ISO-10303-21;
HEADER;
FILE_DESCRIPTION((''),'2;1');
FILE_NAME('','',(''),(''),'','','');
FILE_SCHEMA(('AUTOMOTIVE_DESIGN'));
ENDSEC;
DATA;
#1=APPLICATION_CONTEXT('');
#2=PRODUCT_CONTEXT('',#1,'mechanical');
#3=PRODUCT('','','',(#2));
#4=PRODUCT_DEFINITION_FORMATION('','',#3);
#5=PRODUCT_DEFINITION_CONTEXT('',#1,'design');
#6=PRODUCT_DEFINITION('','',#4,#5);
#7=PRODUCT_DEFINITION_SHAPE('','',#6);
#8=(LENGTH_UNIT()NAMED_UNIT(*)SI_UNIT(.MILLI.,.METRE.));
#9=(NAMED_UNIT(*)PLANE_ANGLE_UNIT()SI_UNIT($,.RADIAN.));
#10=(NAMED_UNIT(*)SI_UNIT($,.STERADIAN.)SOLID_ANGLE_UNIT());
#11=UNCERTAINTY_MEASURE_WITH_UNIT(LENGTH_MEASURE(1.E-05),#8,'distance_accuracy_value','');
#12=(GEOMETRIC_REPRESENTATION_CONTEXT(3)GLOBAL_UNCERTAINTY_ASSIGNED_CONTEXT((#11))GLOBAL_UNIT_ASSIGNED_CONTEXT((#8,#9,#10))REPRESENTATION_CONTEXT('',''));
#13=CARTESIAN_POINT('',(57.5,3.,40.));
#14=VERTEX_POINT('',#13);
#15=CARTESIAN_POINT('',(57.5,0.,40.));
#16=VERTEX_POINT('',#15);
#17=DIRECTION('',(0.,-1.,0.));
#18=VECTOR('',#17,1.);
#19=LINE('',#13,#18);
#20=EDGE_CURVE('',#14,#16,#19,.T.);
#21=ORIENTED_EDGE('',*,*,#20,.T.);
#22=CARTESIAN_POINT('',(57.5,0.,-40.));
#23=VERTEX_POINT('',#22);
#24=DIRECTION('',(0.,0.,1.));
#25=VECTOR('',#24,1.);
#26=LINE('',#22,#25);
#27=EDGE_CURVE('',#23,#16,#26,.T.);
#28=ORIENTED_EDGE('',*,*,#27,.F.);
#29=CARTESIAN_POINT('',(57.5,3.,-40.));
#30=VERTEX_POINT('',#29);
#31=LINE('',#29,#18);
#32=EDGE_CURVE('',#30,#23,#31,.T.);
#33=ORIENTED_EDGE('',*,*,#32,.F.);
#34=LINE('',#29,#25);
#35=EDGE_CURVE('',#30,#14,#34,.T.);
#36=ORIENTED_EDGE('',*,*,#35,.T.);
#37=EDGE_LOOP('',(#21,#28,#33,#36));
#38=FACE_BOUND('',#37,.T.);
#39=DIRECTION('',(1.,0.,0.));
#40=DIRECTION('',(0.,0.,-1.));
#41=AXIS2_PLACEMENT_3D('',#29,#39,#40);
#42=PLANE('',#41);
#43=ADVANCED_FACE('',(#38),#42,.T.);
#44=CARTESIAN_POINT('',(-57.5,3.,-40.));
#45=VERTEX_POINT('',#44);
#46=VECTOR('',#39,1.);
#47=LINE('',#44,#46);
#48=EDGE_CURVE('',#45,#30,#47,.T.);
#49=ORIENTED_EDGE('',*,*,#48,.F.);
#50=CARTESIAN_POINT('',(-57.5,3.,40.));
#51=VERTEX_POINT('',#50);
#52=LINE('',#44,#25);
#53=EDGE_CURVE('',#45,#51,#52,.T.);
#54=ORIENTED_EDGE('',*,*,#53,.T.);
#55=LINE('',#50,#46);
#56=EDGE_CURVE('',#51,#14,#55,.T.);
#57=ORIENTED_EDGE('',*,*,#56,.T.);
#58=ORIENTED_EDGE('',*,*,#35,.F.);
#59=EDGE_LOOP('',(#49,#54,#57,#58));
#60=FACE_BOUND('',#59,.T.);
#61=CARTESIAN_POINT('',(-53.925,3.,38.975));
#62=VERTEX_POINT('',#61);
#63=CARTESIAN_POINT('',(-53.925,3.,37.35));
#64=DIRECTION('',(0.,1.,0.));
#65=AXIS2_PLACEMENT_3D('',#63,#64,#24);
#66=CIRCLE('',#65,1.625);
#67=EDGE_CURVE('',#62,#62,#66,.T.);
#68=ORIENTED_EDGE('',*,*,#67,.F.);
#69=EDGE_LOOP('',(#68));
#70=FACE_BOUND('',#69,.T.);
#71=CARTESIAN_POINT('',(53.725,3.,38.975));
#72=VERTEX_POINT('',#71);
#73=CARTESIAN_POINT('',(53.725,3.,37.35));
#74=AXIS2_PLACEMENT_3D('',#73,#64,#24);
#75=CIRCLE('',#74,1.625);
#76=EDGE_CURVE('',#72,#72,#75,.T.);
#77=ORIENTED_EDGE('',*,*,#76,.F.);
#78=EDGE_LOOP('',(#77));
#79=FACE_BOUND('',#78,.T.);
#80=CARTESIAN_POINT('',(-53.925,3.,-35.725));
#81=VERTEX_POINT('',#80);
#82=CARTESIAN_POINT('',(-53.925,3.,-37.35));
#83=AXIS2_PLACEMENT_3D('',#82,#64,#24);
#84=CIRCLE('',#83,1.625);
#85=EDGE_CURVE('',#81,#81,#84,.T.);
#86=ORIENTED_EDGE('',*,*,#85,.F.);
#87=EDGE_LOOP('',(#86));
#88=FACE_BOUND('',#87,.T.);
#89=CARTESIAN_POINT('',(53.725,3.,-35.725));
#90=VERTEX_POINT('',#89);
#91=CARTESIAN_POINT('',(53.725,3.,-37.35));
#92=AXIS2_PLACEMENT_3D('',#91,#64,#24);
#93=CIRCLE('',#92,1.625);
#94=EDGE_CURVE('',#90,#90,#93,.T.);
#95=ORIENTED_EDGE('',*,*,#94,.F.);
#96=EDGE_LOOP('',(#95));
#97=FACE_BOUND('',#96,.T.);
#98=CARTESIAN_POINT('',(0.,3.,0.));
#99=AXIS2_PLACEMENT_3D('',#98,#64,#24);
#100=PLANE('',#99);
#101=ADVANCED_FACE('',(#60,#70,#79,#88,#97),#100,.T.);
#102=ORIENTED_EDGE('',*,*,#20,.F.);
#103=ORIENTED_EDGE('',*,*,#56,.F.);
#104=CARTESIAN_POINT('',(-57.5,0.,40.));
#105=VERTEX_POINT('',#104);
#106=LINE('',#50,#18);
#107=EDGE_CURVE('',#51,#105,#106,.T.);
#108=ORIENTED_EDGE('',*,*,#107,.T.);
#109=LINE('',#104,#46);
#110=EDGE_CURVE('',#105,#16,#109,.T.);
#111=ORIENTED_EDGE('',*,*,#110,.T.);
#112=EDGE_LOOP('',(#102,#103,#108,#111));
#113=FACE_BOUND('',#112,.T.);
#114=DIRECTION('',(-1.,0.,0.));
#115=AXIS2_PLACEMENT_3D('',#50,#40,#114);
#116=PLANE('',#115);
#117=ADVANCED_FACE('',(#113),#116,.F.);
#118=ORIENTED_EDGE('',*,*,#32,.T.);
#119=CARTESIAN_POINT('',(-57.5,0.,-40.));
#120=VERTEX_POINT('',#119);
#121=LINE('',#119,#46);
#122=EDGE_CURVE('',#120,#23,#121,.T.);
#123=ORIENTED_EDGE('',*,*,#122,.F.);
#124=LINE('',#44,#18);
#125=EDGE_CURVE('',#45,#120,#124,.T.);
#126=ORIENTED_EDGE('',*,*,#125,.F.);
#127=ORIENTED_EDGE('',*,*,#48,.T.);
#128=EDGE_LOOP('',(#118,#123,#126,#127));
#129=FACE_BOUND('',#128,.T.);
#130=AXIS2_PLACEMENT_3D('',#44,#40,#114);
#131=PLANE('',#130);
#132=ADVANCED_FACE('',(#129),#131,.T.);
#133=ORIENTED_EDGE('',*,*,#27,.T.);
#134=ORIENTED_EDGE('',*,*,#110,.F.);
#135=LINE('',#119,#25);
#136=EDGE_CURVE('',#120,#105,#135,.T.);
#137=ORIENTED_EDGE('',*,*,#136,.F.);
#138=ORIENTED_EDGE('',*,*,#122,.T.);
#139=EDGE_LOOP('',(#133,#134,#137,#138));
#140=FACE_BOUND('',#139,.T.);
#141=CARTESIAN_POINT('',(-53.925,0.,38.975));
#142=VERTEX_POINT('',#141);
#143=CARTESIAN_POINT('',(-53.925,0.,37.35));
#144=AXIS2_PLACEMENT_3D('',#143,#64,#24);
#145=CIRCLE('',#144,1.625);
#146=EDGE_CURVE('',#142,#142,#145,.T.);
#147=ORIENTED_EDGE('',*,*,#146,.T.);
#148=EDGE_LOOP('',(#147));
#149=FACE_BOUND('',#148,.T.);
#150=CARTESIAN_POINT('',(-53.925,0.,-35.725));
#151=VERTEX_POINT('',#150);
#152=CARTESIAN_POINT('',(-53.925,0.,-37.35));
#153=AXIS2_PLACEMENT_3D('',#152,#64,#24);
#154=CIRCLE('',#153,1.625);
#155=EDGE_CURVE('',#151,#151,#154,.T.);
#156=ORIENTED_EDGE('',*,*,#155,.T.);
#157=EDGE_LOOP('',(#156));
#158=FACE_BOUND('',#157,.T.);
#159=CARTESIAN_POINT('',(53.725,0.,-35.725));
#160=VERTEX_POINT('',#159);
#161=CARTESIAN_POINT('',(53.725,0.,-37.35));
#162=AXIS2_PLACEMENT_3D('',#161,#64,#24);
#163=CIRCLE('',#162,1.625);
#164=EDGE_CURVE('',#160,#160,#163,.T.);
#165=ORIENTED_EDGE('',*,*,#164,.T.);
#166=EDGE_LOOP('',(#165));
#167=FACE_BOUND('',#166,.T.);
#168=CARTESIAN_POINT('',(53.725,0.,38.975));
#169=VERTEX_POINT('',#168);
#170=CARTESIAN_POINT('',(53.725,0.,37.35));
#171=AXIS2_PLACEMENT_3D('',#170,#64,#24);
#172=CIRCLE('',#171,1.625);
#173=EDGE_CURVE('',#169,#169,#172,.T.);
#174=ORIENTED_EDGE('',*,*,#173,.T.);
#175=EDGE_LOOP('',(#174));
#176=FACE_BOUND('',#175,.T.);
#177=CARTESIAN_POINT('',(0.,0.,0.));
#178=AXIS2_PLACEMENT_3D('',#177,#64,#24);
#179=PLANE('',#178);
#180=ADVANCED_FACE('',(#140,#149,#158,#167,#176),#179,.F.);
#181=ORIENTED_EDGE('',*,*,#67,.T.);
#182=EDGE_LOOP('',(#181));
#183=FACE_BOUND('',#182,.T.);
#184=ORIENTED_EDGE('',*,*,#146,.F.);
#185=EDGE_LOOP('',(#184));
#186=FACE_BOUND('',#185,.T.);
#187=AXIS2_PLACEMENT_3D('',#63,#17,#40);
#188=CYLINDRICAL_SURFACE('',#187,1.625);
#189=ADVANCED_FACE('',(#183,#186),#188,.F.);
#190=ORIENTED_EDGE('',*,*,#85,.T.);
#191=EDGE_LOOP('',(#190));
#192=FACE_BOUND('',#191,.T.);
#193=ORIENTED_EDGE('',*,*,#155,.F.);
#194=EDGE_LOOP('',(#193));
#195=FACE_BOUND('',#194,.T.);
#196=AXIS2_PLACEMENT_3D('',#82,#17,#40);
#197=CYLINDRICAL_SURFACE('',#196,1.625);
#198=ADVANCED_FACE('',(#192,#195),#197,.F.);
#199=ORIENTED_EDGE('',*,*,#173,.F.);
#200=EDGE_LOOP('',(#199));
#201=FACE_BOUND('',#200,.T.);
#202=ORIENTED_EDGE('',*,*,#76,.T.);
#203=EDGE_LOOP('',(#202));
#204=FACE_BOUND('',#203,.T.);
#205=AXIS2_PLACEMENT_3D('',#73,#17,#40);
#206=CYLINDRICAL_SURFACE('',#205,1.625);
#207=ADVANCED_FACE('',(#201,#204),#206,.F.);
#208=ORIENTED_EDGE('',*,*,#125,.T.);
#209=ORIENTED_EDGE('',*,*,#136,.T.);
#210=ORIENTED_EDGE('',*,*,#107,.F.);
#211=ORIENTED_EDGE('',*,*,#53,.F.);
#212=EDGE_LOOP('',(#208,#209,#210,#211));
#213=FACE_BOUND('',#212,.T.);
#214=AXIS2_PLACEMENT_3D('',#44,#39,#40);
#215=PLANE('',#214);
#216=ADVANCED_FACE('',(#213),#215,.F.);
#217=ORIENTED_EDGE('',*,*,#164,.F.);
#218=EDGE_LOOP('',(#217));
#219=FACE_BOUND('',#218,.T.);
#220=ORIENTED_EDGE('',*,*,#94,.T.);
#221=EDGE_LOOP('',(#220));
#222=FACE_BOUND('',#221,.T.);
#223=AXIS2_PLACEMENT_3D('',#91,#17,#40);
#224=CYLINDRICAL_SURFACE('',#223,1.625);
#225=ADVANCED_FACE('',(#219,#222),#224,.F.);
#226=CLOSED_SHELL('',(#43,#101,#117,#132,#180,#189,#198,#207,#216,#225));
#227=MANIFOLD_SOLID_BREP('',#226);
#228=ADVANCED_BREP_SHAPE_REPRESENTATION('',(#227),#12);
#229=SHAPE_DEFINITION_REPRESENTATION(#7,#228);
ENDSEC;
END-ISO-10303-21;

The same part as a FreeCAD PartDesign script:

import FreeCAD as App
import Part
import Sketcher

V = App.Vector


def add_polygon(sketch, points):
    """Adds a closed chain of lines whose ends are joined by coincident constraints."""
    first, n = sketch.GeometryCount, len(points)
    for a, b in zip(points, points[1:] + points[:1]):
        sketch.addGeometry(Part.LineSegment(App.Vector(*a, 0), App.Vector(*b, 0)), False)
    for i in range(n):
        sketch.addConstraint(Sketcher.Constraint("Coincident", first + i, 2, first + (i + 1) % n, 1))

doc = App.newDocument("Part")
body = doc.addObject("PartDesign::Body", "Body")

# Sketch on XZ plane
sketch1 = body.newObject("Sketcher::SketchObject", "Sketch")
sketch1.AttachmentSupport = (doc.getObject("XZ_Plane"), [""])
sketch1.MapMode = "FlatFace"
add_polygon(sketch1, [(-58, -40), (-58, 40), (58, 40), (58, -40)])  # lines 0-3
sketch1.addConstraint([
    Sketcher.Constraint("Vertical", 0),
    Sketcher.Constraint("Horizontal", 1),
    Sketcher.Constraint("Vertical", 2),
    Sketcher.Constraint("Horizontal", 3),
    Sketcher.Constraint("Symmetric", 0, 2, 2, 2, -1, 1),
    Sketcher.Constraint("DistanceX", 1, 1, 1, 2, 115.0),
    Sketcher.Constraint("DistanceY", 0, 1, 0, 2, 80.0),
])
pad1 = body.newObject("PartDesign::Pad", "Pad")
pad1.Profile = sketch1
pad1.Length = 3
pad1.Reversed = True

# Sketch on XZ plane
sketch2 = body.newObject("Sketcher::SketchObject", "Sketch001")
sketch2.AttachmentSupport = (doc.getObject("XZ_Plane"), [""])
sketch2.MapMode = "FlatFace"
add_polygon(sketch2, [(-72.5, -55), (-72.5, 55), (72.5, 55), (72.5, -55)])  # lines 0-3
add_polygon(sketch2, [(57.5, 40), (-57.5, 40), (-57.5, -40), (57.5, -40)])  # lines 4-7
sketch2.addGeometry(Part.Circle(V(-53.9, -37.4, 0), V(0, 0, 1), 1.6), False)  # 8
sketch2.addGeometry(Part.Circle(V(53.7, -37.4, 0), V(0, 0, 1), 1.6), False)  # 9
sketch2.addGeometry(Part.Circle(V(-53.9, 37.4, 0), V(0, 0, 1), 1.6), False)  # 10
sketch2.addGeometry(Part.Circle(V(53.7, 37.4, 0), V(0, 0, 1), 1.6), False)  # 11
sketch2.addConstraint([
    Sketcher.Constraint("Vertical", 0),
    Sketcher.Constraint("Horizontal", 1),
    Sketcher.Constraint("Vertical", 2),
    Sketcher.Constraint("Horizontal", 3),
    Sketcher.Constraint("Horizontal", 4),
    Sketcher.Constraint("Vertical", 5),
    Sketcher.Constraint("Horizontal", 6),
    Sketcher.Constraint("Vertical", 7),
    Sketcher.Constraint("Equal", 8, 9),
    Sketcher.Constraint("Equal", 9, 10),
    Sketcher.Constraint("Equal", 10, 11),
    Sketcher.Constraint("Symmetric", 0, 2, 2, 2, -1, 1),
    Sketcher.Constraint("Symmetric", 4, 2, 6, 2, -1, 1),
    Sketcher.Constraint("Symmetric", 8, 3, 10, 3, -1),
    Sketcher.Constraint("Symmetric", 9, 3, 11, 3, -1),
    Sketcher.Constraint("Horizontal", 8, 3, 9, 3),
    Sketcher.Constraint("Diameter", 8, 3.25),
    Sketcher.Constraint("DistanceX", 4, 2, 4, 1, 115.0),
    Sketcher.Constraint("DistanceY", 5, 2, 5, 1, 80.0),
    Sketcher.Constraint("DistanceY", 8, 3, 10, 3, 74.7),
    Sketcher.Constraint("DistanceX", 1, 1, 1, 2, 145.024),
    Sketcher.Constraint("DistanceY", 0, 1, 0, 2, 110.024),
    Sketcher.Constraint("DistanceX", 8, 3, 9, 3, 107.65),
    Sketcher.Constraint("DistanceX", 8, 3, -1, 1, 53.925),
])
pocket1 = body.newObject("PartDesign::Pocket", "Pocket")
pocket1.Profile = sketch2
pocket1.Length = 3

doc.recompute()
